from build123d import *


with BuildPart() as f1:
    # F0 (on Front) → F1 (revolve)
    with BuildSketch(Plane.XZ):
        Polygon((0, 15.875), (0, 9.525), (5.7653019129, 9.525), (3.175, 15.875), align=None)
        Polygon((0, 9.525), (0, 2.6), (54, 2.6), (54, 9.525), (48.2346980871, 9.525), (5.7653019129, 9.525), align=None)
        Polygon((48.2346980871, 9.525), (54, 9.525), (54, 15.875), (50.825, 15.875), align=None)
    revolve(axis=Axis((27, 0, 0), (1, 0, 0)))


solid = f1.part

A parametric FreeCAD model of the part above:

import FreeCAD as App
import Part
import Sketcher
Q = App.Units.Quantity


def add_polygon(sketch, points):
    """Adds a closed chain of lines whose ends are joined by coincident constraints."""
    first, n = sketch.GeometryCount, len(points)
    for a, b in zip(points, points[1:] + points[:1]):
        sketch.addGeometry(Part.LineSegment(App.Vector(*a, 0), App.Vector(*b, 0)), False)
    for i in range(n):
        sketch.addConstraint(Sketcher.Constraint("Coincident", first + i, 2, first + (i + 1) % n, 1))

doc = App.newDocument("Part")
body = doc.addObject("PartDesign::Body", "Body")

sketch1 = body.newObject("Sketcher::SketchObject", "Sketch")
sketch1.AttachmentSupport = (doc.getObject("XZ_Plane"), [""])
sketch1.MapMode = "FlatFace"
add_polygon(sketch1, [(0, 15.9), (0, 2.6), (54, 2.6), (54, 15.9), (50.8, 15.9), (48.2, 9.5), (5.8, 9.5), (3.2, 15.9)])
sketch1.addConstraint(Sketcher.Constraint("Vertical", 0))
sketch1.addConstraint(Sketcher.Constraint("Horizontal", 1))
sketch1.addConstraint(Sketcher.Constraint("Vertical", 2))
sketch1.addConstraint(Sketcher.Constraint("Horizontal", 3))
sketch1.addConstraint(Sketcher.Constraint("Horizontal", 5))
sketch1.addConstraint(Sketcher.Constraint("Horizontal", 7))
sketch1.addConstraint(Sketcher.Constraint("PointOnObject", 0, 2, -2))
sketch1.addConstraint(Sketcher.Constraint("Horizontal", 3, 2, 6, 2))
sketch1.addConstraint(Sketcher.Constraint("Equal", 3, 7))
sketch1.addConstraint(Sketcher.Constraint("Equal", 4, 6))
sketch1.addConstraint(Sketcher.Constraint("Distance", 4, Q("0.27 in")))
sketch1.addConstraint(Sketcher.Constraint("DistanceX", 3, 2, 3, 1, Q("0.125 in")))
sketch1.addConstraint(Sketcher.Constraint("DistanceY", 4, 2, 3, 2, Q("0.25 in")))
sketch1.addConstraint(Sketcher.Constraint("DistanceY", -1, 1, 2, 2, Q("0.625 in")))
sketch1.addConstraint(Sketcher.Constraint("DistanceX", 1, 1, 1, 2, Q("54 mm")))
sketch1.addConstraint(Sketcher.Constraint("DistanceY", 0, 2, 0, 1, Q("13.275 mm")))
revolution = body.newObject("PartDesign::Revolution", "Revolution")
revolution.Profile = sketch1
revolution.ReferenceAxis = (sketch1, ["H_Axis"])
revolution.Angle = 360

doc.recompute()
